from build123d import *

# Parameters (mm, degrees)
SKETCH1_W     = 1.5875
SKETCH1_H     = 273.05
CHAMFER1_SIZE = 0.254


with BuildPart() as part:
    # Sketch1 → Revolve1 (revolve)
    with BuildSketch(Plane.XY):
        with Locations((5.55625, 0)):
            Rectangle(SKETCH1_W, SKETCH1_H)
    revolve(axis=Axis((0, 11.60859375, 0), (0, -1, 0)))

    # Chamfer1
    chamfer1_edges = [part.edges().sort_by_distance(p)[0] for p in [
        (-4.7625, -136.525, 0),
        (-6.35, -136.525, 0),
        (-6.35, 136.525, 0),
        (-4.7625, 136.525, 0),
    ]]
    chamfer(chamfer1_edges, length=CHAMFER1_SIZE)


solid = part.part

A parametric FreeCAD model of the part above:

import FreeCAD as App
import Part
import Sketcher
from FreeCAD import Vector
Q = App.Units.Quantity


def edges_at(feature, points):
    """Names of the edges that pass closest to the given points."""
    edges = feature.Shape.Edges
    near = lambda p: min(range(len(edges)), key=lambda i: edges[i].distToShape(Part.Vertex(*p))[0])
    return sorted({f"Edge{near(p) + 1}" for p in points})

doc = App.newDocument("Part")
body = doc.addObject("PartDesign::Body", "Body")

sketch1 = body.newObject("Sketcher::SketchObject", "Sketch")
sketch1.AttachmentSupport = (doc.getObject("XY_Plane"), [""])
sketch1.MapMode = "FlatFace"
sketch1.addGeometry(Part.LineSegment(Vector(4.8, 136.5, 0), Vector(4.8, -136.5, 0)), False)
sketch1.addGeometry(Part.LineSegment(Vector(4.8, -136.5, 0), Vector(6.3, -136.5, 0)), False)
sketch1.addGeometry(Part.LineSegment(Vector(6.3, -136.5, 0), Vector(6.3, 136.5, 0)), False)
sketch1.addGeometry(Part.LineSegment(Vector(6.3, 136.5, 0), Vector(4.8, 136.5, 0)), False)
sketch1.addConstraint(Sketcher.Constraint("Coincident", 0, 2, 1, 1))
sketch1.addConstraint(Sketcher.Constraint("Coincident", 1, 2, 2, 1))
sketch1.addConstraint(Sketcher.Constraint("Coincident", 2, 2, 3, 1))
sketch1.addConstraint(Sketcher.Constraint("Coincident", 3, 2, 0, 1))
sketch1.addConstraint(Sketcher.Constraint("Vertical", 0))
sketch1.addConstraint(Sketcher.Constraint("Horizontal", 1))
sketch1.addConstraint(Sketcher.Constraint("Vertical", 2))
sketch1.addConstraint(Sketcher.Constraint("Horizontal", 3))
sketch1.addConstraint(Sketcher.Constraint("DistanceY", 0, 2, 0, 1, Q("10.75 in")))
sketch1.addConstraint(Sketcher.Constraint("DistanceX", 1, 1, 1, 2, Q("0.0625 in")))
sketch1.addConstraint(Sketcher.Constraint("DistanceX", -1, 1, 1, 2, Q("0.25 in")))
sketch1.addConstraint(Sketcher.Constraint("DistanceY", 0, 2, -1, 1, Q("5.375 in")))
revolution = body.newObject("PartDesign::Revolution", "Revolution")
revolution.Profile = sketch1
revolution.ReferenceAxis = (sketch1, ["V_Axis"])
revolution.Angle = 360
doc.recompute()

chamfer = body.newObject("PartDesign::Chamfer", "Chamfer")
chamfer.Base = (revolution, edges_at(revolution, [
    (-4.763, -136.525, 0),
    (-6.35, -136.525, 0),
    (-6.35, 136.525, 0),
    (-4.763, 136.525, 0),
]))
chamfer.Size = Q("0.01 in")

doc.recompute()
